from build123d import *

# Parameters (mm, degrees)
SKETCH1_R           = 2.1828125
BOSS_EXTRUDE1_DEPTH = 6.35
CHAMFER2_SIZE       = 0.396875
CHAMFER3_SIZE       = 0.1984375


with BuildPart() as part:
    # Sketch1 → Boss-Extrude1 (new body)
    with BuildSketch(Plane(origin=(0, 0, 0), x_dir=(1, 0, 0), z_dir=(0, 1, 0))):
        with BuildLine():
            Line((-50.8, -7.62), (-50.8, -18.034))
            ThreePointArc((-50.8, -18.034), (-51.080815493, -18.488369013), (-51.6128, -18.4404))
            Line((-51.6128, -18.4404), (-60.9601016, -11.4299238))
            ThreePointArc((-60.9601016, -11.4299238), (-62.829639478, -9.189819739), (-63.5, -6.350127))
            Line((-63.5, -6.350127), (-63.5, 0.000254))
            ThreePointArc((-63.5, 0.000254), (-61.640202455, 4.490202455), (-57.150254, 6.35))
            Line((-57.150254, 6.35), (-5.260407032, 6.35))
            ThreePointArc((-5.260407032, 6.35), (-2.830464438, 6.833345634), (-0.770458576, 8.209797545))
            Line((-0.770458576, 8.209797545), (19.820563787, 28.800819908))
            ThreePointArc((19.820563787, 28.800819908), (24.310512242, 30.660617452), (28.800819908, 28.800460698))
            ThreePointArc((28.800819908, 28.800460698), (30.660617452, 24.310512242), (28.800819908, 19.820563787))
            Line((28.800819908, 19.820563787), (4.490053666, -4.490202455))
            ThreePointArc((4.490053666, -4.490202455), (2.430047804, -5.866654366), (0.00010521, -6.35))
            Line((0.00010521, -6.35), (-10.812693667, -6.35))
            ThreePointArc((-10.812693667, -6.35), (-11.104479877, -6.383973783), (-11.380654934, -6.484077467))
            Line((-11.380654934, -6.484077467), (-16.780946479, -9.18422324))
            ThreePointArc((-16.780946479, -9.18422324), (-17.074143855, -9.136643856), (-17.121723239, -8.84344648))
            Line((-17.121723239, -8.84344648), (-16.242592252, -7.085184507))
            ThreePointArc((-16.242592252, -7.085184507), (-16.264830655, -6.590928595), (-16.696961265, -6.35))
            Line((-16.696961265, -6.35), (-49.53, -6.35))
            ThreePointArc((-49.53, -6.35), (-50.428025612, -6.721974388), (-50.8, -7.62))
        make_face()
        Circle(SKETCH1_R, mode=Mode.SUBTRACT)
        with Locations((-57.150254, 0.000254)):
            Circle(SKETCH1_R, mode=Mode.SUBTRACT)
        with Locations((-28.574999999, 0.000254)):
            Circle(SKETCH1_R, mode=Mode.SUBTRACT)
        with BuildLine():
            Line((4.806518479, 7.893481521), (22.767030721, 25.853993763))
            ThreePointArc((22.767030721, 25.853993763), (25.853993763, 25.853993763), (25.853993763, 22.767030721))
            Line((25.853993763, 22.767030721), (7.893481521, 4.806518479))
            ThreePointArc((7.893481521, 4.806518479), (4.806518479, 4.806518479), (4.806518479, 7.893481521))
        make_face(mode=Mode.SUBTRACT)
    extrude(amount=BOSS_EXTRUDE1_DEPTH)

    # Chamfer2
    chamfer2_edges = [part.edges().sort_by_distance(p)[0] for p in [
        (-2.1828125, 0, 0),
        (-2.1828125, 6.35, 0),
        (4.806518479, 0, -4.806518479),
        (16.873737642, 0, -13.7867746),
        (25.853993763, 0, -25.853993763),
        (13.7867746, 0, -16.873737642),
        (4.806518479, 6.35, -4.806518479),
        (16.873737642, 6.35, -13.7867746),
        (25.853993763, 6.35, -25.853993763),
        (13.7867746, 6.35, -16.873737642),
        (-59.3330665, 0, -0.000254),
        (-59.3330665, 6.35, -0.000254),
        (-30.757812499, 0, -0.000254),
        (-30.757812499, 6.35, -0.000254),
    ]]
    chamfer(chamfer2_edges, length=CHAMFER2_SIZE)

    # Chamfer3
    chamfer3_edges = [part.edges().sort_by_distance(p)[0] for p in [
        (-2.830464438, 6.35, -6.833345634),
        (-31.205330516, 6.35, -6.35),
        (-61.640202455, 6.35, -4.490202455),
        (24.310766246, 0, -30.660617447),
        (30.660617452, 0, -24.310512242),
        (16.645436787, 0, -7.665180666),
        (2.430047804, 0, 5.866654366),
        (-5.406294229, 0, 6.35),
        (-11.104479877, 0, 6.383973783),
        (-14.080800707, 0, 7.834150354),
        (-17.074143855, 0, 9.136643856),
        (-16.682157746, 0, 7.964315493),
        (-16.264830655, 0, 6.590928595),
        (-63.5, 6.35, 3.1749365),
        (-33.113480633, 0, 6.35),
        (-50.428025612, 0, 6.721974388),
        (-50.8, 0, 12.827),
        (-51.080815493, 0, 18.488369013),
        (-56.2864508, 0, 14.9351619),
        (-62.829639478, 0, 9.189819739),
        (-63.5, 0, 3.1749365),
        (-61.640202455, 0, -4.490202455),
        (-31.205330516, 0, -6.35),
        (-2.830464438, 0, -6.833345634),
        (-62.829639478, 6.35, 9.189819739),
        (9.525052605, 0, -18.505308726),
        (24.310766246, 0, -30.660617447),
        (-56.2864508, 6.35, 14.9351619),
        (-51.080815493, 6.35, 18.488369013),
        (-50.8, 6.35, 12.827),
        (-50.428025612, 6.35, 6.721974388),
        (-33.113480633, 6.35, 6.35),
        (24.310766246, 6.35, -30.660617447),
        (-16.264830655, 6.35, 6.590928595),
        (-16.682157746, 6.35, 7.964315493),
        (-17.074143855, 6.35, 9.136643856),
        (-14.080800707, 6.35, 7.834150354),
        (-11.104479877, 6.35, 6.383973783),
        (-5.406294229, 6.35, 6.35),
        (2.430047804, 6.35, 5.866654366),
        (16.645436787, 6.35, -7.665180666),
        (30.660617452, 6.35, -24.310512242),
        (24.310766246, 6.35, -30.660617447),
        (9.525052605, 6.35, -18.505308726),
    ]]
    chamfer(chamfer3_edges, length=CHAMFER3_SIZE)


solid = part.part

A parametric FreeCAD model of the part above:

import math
import FreeCAD as App
import Part
import Sketcher
Q = App.Units.Quantity


def edges_at(feature, points):
    """Names of the edges that pass closest to the given points."""
    edges = feature.Shape.Edges
    near = lambda p: min(range(len(edges)), key=lambda i: edges[i].distToShape(Part.Vertex(*p))[0])
    return sorted({f"Edge{near(p) + 1}" for p in points})

doc = App.newDocument("Part")
body = doc.addObject("PartDesign::Body", "Body")

sketch1 = doc.addObject("Sketcher::SketchObject", "Sketch")
body.addObject(sketch1)
sketch1.AttachmentSupport = (doc.XZ_Plane, [""])
sketch1.MapMode = "FlatFace"
sketch1.addGeometry([
    Part.LineSegment(App.Vector(-50.8, 18.03, 0), App.Vector(-50.8, 7.62, 0)),
    Part.ArcOfCircle(Part.Circle(App.Vector(-49.53, 7.62, 0), App.Vector(0, 0, 1), 1.27), math.radians(180), math.radians(270)),
    Part.LineSegment(App.Vector(-49.53, 6.35, 0), App.Vector(-16.7, 6.35, 0)),
    Part.ArcOfCircle(Part.Circle(App.Vector(-16.7, 6.86, 0), App.Vector(0, 0, 1), 0.51), math.radians(-90), math.radians(27)),
    Part.LineSegment(App.Vector(-16.24, 7.09, 0), App.Vector(-17.12, 8.84, 0)),
    Part.ArcOfCircle(Part.Circle(App.Vector(-16.89, 8.96, 0), App.Vector(0, 0, 1), 0.25), math.radians(63), math.radians(207)),
    Part.LineSegment(App.Vector(-16.78, 9.18, 0), App.Vector(-11.38, 6.48, 0)),
    Part.ArcOfCircle(Part.Circle(App.Vector(-10.81, 7.62, 0), App.Vector(0, 0, 1), 1.27), math.radians(-117), math.radians(-90)),
    Part.LineSegment(App.Vector(-10.81, 6.35, 0), App.Vector(0, 6.35, 0)),
    Part.ArcOfCircle(Part.Circle(App.Vector(0, 0, 0), App.Vector(0, 0, 1), 6.35), math.radians(45), math.radians(90)),
    Part.LineSegment(App.Vector(4.49, 4.49, 0), App.Vector(28.8, -19.82, 0)),
    Part.ArcOfCircle(Part.Circle(App.Vector(24.31, -24.31, 0), App.Vector(0, 0, 1), 6.35), math.radians(-45), math.radians(45)),
    Part.ArcOfCircle(Part.Circle(App.Vector(24.31, -24.31, 0), App.Vector(0, 0, 1), 6.35), math.radians(-135), math.radians(-45)),
    Part.LineSegment(App.Vector(19.82, -28.8, 0), App.Vector(-0.77, -8.21, 0)),
    Part.ArcOfCircle(Part.Circle(App.Vector(-5.26, -12.7, 0), App.Vector(0, 0, 1), 6.35), math.radians(45), math.radians(90)),
    Part.LineSegment(App.Vector(-5.26, -6.35, 0), App.Vector(-57.15, -6.35, 0)),
    Part.ArcOfCircle(Part.Circle(App.Vector(-57.15, 0, 0), App.Vector(0, 0, 1), 6.35), math.radians(-180), math.radians(-90)),
    Part.LineSegment(App.Vector(-63.5, 0, 0), App.Vector(-63.5, 6.35, 0)),
    Part.ArcOfCircle(Part.Circle(App.Vector(-57.15, 6.35, 0), App.Vector(0, 0, 1), 6.35), math.radians(127), math.radians(180)),
    Part.LineSegment(App.Vector(-60.96, 11.43, 0), App.Vector(-51.61, 18.44, 0)),
    Part.ArcOfCircle(Part.Circle(App.Vector(-51.31, 18.03, 0), App.Vector(0, 0, 1), 0.51), math.radians(0), math.radians(127)),
    Part.Circle(App.Vector(0, 0, 0), App.Vector(0, 0, 1), 2.18),
    Part.Circle(App.Vector(-28.57, 0, 0), App.Vector(0, 0, 1), 2.18),
    Part.Circle(App.Vector(-57.15, 0, 0), App.Vector(0, 0, 1), 2.18),
    Part.LineSegment(App.Vector(4.81, -7.89, 0), App.Vector(22.77, -25.85, 0)),
    Part.ArcOfCircle(Part.Circle(App.Vector(24.31, -24.31, 0), App.Vector(0, 0, 1), 2.18), math.radians(-135), math.radians(45)),
    Part.LineSegment(App.Vector(25.85, -22.77, 0), App.Vector(7.89, -4.81, 0)),
    Part.ArcOfCircle(Part.Circle(App.Vector(6.35, -6.35, 0), App.Vector(0, 0, 1), 2.18), math.radians(45), math.radians(225)),
], False)
sketch1.addConstraint([
    Sketcher.Constraint("Tangent", 0, 2, 1, 1),
    Sketcher.Constraint("Tangent", 1, 2, 2, 1),
    Sketcher.Constraint("Tangent", 2, 2, 3, 1),
    Sketcher.Constraint("Tangent", 3, 2, 4, 1),
    Sketcher.Constraint("Tangent", 4, 2, 5, 2),
    Sketcher.Constraint("Tangent", 5, 1, 6, 1),
    Sketcher.Constraint("Tangent", 6, 2, 7, 1),
    Sketcher.Constraint("Tangent", 7, 2, 8, 1),
    Sketcher.Constraint("Tangent", 8, 2, 9, 2),
    Sketcher.Constraint("Tangent", 9, 1, 10, 1),
    Sketcher.Constraint("Tangent", 10, 2, 11, 2),
    Sketcher.Constraint("Coincident", 11, 1, 12, 2),
    Sketcher.Constraint("Tangent", 12, 1, 13, 1),
    Sketcher.Constraint("Tangent", 13, 2, 14, 1),
    Sketcher.Constraint("Tangent", 14, 2, 15, 1),
    Sketcher.Constraint("Tangent", 15, 2, 16, 2),
    Sketcher.Constraint("Tangent", 16, 1, 17, 1),
    Sketcher.Constraint("Tangent", 17, 2, 18, 2),
    Sketcher.Constraint("Tangent", 18, 1, 19, 1),
    Sketcher.Constraint("Tangent", 19, 2, 20, 2),
    Sketcher.Constraint("Tangent", 20, 1, 0, 1),
    Sketcher.Constraint("Tangent", 24, 2, 25, 1),
    Sketcher.Constraint("Tangent", 25, 2, 26, 1),
    Sketcher.Constraint("Tangent", 26, 2, 27, 1),
    Sketcher.Constraint("Tangent", 27, 2, 24, 1),
    Sketcher.Constraint("Vertical", 0),
    Sketcher.Constraint("Horizontal", 2),
    Sketcher.Constraint("Horizontal", 8),
    Sketcher.Constraint("Horizontal", 15),
    Sketcher.Constraint("Vertical", 17),
    Sketcher.Constraint("Coincident", 21, 3, -1, 1),
    Sketcher.Constraint("Coincident", 23, 3, 16, 3),
    Sketcher.Constraint("Equal", 1, 7),
    Sketcher.Constraint("Equal", 9, 11),
    Sketcher.Constraint("Equal", 11, 12),
    Sketcher.Constraint("Equal", 12, 14),
    Sketcher.Constraint("Equal", 14, 16),
    Sketcher.Constraint("Equal", 16, 18),
    Sketcher.Constraint("Equal", 3, 20),
    Sketcher.Constraint("Equal", 21, 22),
    Sketcher.Constraint("Equal", 22, 23),
    Sketcher.Constraint("Equal", 23, 25),
    Sketcher.Constraint("Equal", 25, 27),
    Sketcher.Constraint("Parallel", 10, 13),
    Sketcher.Constraint("Parallel", 13, 24),
    Sketcher.Constraint("Horizontal", 1, 3, 7, 3),
    Sketcher.Constraint("Horizontal", 16, 3, 22, 3),
    Sketcher.Constraint("Horizontal", 11, 3, 25, 3),
    Sketcher.Constraint("Horizontal", 27, 3, 14, 2),
    Sketcher.Constraint("Vertical", 12, 3, 25, 3),
    Sketcher.Constraint("Vertical", 10, 2, 11, 1),
    Sketcher.Constraint("Radius", 1, Q("0.05 in")),
    Sketcher.Constraint("Radius", 3, Q("0.02 in")),
    Sketcher.Constraint("Radius", 5, Q("0.01 in")),
    Sketcher.Constraint("Distance", 24, Q("1 in")),
    Sketcher.Constraint("Diameter", 21, Q("0.171875 in")),
    Sketcher.Constraint("DistanceX", 0, 2, -1, 1, Q("2 in")),
    Sketcher.Constraint("Angle", 10, Q("-45 deg")),
    Sketcher.Constraint("DistanceY", 0, 2, 0, 1, Q("0.41 in")),
    Sketcher.Constraint("DistanceY", -1, 1, 1, 3, Q("0.3 in")),
    Sketcher.Constraint("DistanceX", 16, 1, -1, 1, Q("2.5 in")),
    Sketcher.Constraint("DistanceY", 14, 3, 9, 3, Q("0.5 in")),
    Sketcher.Constraint("DistanceX", -1, 1, 27, 3, Q("0.25 in")),
    Sketcher.Constraint("DistanceX", 22, 3, -1, 1, Q("1.125 in")),
    Sketcher.Constraint("DistanceX", 19, 2, -1, 1, Q("2.032 in")),
    Sketcher.Constraint("DistanceX", 8, 1, 8, 2, 10.812799),
    Sketcher.Constraint("Radius", 9, 6.349746),
    Sketcher.Constraint("DistanceX", 13, 2, 26, 2, Q("0.3411 in")),
    Sketcher.Constraint("DistanceX", 2, 1, 2, 2, 32.833039),
    Sketcher.Constraint("DistanceX", 3, 2, 7, 3, 5.429899),
    Sketcher.Constraint("Distance", 6, 6.037709),
])
pad1 = doc.addObject("PartDesign::Pad", "Pad")
body.addObject(pad1)
pad1.Profile = sketch1
pad1.Length = Q("0.25 in")
pad1.Reversed = True
doc.recompute()

chamfer = doc.addObject("PartDesign::Chamfer", "Chamfer")
body.addObject(chamfer)
chamfer.Base = (pad1, edges_at(pad1, [
    (-2.183, 0, 0),
    (-2.183, 6.35, 0),
    (4.807, 0, -4.807),
    (16.874, 0, -13.787),
    (25.854, 0, -25.854),
    (13.787, 0, -16.874),
    (4.807, 6.35, -4.807),
    (16.874, 6.35, -13.787),
    (25.854, 6.35, -25.854),
    (13.787, 6.35, -16.874),
    (-59.333, 0, 0),
    (-59.333, 6.35, 0),
    (-30.758, 0, 0),
    (-30.758, 6.35, 0),
]))
chamfer.Size = Q("0.015625 in")
doc.recompute()

chamfer2 = doc.addObject("PartDesign::Chamfer", "Chamfer001")
body.addObject(chamfer2)
chamfer2.Base = (chamfer, edges_at(chamfer, [
    (-2.83, 6.35, -6.833),
    (-31.205, 6.35, -6.35),
    (-61.64, 6.35, -4.49),
    (24.311, 0, -30.661),
    (30.661, 0, -24.311),
    (16.645, 0, -7.665),
    (2.43, 0, 5.867),
    (-5.406, 0, 6.35),
    (-11.104, 0, 6.384),
    (-14.081, 0, 7.834),
    (-17.074, 0, 9.137),
    (-16.682, 0, 7.964),
    (-16.265, 0, 6.591),
    (-63.5, 6.35, 3.175),
    (-33.113, 0, 6.35),
    (-50.428, 0, 6.722),
    (-50.8, 0, 12.827),
    (-51.081, 0, 18.488),
    (-56.286, 0, 14.935),
    (-62.83, 0, 9.19),
    (-63.5, 0, 3.175),
    (-61.64, 0, -4.49),
    (-31.205, 0, -6.35),
    (-2.83, 0, -6.833),
    (-62.83, 6.35, 9.19),
    (9.525, 0, -18.505),
    (24.311, 0, -30.661),
    (-56.286, 6.35, 14.935),
    (-51.081, 6.35, 18.488),
    (-50.8, 6.35, 12.827),
    (-50.428, 6.35, 6.722),
    (-33.113, 6.35, 6.35),
    (24.311, 6.35, -30.661),
    (-16.265, 6.35, 6.591),
    (-16.682, 6.35, 7.964),
    (-17.074, 6.35, 9.137),
    (-14.081, 6.35, 7.834),
    (-11.104, 6.35, 6.384),
    (-5.406, 6.35, 6.35),
    (2.43, 6.35, 5.867),
    (16.645, 6.35, -7.665),
    (30.661, 6.35, -24.311),
    (24.311, 6.35, -30.661),
    (9.525, 6.35, -18.505),
]))
chamfer2.Size = 0.198437

doc.recompute()
